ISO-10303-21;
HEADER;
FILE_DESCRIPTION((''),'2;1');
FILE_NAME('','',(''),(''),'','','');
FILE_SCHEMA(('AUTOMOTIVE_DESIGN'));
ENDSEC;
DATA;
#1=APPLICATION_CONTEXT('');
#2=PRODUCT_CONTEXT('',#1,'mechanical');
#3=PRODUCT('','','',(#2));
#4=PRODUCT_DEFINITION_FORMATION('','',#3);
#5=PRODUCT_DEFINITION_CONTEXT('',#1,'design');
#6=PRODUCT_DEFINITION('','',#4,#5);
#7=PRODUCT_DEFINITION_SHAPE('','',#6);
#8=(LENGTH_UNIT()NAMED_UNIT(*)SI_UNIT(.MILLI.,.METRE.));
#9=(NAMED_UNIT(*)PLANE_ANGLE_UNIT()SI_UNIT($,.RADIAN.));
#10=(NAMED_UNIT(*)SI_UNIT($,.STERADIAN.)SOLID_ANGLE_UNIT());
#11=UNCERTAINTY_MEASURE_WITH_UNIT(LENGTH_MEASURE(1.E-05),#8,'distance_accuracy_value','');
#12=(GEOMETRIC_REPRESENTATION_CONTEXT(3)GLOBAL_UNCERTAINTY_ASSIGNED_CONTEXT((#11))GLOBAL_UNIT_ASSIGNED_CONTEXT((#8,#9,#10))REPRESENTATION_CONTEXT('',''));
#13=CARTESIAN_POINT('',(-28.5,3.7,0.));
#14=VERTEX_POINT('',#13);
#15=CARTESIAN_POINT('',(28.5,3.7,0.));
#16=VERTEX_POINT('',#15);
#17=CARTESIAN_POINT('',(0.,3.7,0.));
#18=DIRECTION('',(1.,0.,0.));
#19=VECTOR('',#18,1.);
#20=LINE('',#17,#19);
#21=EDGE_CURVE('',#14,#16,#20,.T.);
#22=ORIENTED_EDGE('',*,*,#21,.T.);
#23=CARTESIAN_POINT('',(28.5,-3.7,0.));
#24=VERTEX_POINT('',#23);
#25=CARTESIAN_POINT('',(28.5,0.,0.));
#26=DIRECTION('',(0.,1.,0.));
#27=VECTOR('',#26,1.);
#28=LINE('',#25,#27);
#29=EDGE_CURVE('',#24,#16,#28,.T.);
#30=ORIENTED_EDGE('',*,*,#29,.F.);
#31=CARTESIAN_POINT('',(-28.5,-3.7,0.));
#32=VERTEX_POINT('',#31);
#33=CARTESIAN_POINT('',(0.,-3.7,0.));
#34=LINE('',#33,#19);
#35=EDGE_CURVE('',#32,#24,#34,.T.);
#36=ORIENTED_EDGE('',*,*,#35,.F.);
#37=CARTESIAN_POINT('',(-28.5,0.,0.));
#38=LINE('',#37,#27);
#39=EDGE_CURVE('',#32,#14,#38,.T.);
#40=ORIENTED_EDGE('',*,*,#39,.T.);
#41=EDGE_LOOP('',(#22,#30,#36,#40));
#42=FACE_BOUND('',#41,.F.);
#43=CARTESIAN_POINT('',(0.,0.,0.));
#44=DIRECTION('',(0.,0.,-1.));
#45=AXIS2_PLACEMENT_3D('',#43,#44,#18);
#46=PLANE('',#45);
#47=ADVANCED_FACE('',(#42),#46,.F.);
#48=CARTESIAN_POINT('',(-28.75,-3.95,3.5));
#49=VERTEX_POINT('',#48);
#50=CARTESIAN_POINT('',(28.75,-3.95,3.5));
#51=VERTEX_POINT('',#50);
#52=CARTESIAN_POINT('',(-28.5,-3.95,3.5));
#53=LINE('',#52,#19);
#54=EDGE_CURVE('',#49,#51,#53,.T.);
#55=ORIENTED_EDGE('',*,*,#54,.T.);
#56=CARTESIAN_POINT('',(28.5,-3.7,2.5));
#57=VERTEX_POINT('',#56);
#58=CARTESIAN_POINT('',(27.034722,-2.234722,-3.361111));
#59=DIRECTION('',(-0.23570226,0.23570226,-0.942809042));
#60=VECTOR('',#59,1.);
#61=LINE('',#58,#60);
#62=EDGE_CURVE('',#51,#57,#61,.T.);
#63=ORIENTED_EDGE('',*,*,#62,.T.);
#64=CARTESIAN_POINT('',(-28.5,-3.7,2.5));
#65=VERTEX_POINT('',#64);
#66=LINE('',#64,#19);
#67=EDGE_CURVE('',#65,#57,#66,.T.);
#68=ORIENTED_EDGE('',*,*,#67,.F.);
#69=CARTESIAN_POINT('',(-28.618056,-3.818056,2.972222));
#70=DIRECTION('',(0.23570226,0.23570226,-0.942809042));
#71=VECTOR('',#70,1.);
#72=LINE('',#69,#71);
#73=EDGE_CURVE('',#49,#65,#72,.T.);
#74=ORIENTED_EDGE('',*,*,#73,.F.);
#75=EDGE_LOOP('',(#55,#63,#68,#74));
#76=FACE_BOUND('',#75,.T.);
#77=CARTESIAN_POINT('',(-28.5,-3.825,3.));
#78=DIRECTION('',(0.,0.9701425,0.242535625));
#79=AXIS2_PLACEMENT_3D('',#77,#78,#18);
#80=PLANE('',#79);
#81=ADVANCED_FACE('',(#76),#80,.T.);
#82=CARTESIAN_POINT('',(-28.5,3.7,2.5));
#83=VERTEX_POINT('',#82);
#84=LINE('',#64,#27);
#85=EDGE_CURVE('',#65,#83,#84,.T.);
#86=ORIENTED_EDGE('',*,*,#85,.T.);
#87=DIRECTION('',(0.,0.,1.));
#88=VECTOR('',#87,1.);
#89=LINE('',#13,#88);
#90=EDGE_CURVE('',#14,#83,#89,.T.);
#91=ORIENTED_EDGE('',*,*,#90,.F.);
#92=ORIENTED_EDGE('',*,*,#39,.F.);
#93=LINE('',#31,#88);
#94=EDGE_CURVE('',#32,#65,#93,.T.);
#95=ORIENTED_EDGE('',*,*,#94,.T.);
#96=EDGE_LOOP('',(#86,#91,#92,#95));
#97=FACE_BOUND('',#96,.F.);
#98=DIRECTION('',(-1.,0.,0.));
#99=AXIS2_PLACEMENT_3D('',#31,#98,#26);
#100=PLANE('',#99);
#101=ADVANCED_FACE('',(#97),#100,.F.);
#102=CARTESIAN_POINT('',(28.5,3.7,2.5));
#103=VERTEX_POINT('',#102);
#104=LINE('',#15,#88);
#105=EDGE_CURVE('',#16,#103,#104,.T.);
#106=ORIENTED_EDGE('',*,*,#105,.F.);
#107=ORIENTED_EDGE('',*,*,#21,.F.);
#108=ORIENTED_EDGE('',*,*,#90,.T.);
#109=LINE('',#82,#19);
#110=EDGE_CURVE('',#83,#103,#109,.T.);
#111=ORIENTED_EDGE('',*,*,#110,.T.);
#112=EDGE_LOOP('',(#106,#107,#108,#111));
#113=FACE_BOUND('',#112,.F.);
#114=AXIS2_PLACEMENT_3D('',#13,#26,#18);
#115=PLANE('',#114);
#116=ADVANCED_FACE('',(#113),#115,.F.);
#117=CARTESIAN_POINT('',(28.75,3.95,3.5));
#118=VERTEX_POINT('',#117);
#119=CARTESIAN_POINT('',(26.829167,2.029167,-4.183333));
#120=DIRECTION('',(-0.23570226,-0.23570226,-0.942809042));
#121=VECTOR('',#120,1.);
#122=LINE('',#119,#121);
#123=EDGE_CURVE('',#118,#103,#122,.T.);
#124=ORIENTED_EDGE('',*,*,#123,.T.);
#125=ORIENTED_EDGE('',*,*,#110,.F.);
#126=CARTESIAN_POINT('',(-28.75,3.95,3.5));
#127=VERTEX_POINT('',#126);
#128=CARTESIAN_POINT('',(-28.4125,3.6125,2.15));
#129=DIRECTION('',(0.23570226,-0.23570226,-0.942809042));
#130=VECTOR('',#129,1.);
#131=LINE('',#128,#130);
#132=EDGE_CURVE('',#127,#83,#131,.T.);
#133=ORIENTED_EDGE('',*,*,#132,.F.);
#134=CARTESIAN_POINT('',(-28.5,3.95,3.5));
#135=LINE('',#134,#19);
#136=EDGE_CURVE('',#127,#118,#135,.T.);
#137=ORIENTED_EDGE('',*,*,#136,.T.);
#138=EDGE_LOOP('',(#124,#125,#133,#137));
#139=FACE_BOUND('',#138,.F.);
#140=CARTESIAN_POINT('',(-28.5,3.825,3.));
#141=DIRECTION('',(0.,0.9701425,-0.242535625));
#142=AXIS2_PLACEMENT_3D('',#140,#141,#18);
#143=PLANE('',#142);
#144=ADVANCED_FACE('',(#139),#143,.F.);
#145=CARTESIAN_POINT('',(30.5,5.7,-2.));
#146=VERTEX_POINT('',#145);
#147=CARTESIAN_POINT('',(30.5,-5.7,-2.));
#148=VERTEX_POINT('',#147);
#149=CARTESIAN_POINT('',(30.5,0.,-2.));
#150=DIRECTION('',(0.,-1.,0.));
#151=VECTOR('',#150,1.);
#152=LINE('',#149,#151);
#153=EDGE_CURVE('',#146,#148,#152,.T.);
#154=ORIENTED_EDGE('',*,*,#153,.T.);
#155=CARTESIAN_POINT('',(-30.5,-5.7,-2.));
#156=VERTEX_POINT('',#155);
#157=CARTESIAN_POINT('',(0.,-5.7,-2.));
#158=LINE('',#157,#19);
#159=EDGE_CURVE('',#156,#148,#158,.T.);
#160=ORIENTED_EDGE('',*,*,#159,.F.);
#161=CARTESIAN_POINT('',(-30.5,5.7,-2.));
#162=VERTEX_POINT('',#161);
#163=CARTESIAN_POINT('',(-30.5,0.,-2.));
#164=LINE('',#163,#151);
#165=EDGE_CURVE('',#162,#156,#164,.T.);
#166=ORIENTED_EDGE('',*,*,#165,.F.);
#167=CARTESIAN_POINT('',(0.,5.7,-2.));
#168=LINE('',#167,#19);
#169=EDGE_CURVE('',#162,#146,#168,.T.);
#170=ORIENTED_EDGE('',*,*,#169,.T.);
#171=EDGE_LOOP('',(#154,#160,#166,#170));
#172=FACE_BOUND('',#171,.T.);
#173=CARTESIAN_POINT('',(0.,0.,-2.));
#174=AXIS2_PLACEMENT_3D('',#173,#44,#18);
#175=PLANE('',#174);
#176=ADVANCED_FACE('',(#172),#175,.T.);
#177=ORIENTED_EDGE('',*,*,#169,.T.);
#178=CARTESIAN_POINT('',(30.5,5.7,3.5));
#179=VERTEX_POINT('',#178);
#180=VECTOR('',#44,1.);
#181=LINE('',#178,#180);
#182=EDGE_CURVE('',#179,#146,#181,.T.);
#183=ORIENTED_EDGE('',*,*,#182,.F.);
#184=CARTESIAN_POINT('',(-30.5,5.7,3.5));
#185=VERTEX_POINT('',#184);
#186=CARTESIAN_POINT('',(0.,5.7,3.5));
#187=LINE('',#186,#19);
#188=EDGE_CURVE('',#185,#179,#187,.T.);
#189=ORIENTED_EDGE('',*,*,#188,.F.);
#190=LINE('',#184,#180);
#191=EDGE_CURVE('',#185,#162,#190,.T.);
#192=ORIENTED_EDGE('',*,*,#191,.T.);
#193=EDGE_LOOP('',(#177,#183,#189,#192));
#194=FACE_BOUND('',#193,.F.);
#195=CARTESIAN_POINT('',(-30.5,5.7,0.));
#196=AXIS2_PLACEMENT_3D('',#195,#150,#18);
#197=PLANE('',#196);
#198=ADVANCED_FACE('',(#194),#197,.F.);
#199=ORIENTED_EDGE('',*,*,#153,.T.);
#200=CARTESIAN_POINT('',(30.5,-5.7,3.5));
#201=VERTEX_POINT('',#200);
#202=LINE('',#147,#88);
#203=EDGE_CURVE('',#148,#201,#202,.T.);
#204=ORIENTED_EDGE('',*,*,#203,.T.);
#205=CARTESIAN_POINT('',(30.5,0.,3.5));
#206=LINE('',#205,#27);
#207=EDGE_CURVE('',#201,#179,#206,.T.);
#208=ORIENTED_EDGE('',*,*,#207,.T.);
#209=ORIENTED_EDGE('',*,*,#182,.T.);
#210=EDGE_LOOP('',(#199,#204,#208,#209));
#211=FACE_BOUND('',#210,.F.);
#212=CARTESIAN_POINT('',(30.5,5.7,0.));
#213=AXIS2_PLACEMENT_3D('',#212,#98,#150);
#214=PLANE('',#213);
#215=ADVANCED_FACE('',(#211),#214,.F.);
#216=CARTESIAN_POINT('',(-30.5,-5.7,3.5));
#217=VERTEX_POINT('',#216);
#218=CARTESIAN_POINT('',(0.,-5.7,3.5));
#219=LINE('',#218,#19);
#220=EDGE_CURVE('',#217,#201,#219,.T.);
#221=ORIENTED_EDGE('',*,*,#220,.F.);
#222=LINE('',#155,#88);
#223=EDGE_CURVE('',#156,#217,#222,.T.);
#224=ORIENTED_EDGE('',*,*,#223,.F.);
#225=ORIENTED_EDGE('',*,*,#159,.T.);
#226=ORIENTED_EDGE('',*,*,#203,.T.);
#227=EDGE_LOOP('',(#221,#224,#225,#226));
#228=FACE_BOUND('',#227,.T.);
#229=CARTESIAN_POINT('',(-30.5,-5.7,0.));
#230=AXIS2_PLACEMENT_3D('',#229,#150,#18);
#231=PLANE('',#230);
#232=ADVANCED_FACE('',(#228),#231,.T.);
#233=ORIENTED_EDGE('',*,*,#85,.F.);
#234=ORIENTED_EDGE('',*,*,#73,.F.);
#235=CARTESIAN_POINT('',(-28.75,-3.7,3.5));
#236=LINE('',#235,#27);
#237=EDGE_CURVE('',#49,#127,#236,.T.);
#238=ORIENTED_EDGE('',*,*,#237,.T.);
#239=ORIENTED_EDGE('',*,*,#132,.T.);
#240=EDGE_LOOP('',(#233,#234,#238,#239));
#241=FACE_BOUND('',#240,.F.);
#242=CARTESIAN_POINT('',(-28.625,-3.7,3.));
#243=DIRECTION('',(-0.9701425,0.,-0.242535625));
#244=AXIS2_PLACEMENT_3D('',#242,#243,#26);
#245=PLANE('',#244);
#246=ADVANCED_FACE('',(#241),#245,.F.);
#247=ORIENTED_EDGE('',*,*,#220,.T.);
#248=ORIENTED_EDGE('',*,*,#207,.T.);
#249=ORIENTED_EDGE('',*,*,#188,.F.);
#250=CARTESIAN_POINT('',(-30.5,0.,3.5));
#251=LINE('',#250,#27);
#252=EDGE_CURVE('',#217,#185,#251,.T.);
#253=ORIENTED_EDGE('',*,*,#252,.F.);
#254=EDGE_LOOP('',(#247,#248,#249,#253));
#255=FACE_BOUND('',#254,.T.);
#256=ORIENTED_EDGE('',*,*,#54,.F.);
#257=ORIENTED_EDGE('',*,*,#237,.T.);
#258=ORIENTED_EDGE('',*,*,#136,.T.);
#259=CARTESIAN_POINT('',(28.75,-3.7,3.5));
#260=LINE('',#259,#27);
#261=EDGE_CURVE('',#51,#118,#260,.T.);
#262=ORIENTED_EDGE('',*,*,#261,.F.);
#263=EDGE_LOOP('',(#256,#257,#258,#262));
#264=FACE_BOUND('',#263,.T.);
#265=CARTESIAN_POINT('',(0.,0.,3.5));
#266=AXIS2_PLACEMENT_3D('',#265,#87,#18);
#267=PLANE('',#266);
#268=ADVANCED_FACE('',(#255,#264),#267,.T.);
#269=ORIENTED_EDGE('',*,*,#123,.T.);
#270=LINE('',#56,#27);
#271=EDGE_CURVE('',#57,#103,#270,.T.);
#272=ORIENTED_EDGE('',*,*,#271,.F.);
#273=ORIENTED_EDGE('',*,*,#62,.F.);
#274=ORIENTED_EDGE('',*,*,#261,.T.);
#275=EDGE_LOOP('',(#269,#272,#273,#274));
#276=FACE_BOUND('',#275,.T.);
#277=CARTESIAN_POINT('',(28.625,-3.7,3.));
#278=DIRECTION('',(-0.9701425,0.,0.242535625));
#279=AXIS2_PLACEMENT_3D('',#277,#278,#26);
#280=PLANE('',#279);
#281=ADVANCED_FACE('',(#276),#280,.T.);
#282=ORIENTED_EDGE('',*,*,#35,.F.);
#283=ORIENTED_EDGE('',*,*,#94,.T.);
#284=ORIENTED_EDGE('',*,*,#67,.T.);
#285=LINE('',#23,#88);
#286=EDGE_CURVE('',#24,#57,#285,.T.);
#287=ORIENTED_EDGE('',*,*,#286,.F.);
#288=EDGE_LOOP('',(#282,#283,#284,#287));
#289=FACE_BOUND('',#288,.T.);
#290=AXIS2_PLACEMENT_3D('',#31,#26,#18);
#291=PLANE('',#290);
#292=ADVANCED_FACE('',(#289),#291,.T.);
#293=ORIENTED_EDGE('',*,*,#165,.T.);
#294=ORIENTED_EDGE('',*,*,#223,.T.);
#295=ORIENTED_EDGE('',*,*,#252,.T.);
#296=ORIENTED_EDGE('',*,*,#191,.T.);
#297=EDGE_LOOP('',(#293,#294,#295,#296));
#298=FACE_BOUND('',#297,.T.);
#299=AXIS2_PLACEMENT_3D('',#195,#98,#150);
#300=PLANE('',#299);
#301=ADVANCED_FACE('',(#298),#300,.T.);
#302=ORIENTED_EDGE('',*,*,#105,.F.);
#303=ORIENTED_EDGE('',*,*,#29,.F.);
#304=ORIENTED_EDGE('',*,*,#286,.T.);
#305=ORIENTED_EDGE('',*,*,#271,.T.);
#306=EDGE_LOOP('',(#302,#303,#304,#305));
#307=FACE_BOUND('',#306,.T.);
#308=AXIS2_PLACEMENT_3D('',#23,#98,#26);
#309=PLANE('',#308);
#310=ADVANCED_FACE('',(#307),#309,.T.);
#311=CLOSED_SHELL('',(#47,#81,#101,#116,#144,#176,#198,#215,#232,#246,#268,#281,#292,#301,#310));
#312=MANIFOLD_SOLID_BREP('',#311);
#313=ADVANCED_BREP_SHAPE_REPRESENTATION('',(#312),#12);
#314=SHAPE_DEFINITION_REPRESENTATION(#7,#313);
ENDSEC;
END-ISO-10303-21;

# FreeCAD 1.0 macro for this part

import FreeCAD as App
import Part
import Sketcher
from FreeCAD import Vector


def edges_at(feature, points):
    """Names of the edges that pass closest to the given points."""
    edges = feature.Shape.Edges
    near = lambda p: min(range(len(edges)), key=lambda i: edges[i].distToShape(Part.Vertex(*p))[0])
    return sorted({f"Edge{near(p) + 1}" for p in points})

doc = App.newDocument("Part")
body = doc.addObject("PartDesign::Body", "Body")

# Sketch on XY plane
sketch1 = body.newObject("Sketcher::SketchObject", "Sketch")
sketch1.AttachmentSupport = (doc.getObject("XY_Plane"), [""])
sketch1.MapMode = "FlatFace"
sketch1.addGeometry(Part.LineSegment(Vector(-30, 6, 0), Vector(-30, -6, 0)), False)
sketch1.addGeometry(Part.LineSegment(Vector(-30, -6, 0), Vector(30, -6, 0)), False)
sketch1.addGeometry(Part.LineSegment(Vector(30, -6, 0), Vector(30, 6, 0)), False)
sketch1.addGeometry(Part.LineSegment(Vector(30, 6, 0), Vector(-30, 6, 0)), False)
sketch1.addGeometry(Part.LineSegment(Vector(28, -4, 0), Vector(-28, -4, 0)), False)
sketch1.addGeometry(Part.LineSegment(Vector(-28, -4, 0), Vector(-28, 4, 0)), False)
sketch1.addGeometry(Part.LineSegment(Vector(-28, 4, 0), Vector(28, 4, 0)), False)
sketch1.addGeometry(Part.LineSegment(Vector(28, 4, 0), Vector(28, -4, 0)), False)
sketch1.addConstraint(Sketcher.Constraint("Coincident", 0, 2, 1, 1))
sketch1.addConstraint(Sketcher.Constraint("Coincident", 1, 2, 2, 1))
sketch1.addConstraint(Sketcher.Constraint("Coincident", 2, 2, 3, 1))
sketch1.addConstraint(Sketcher.Constraint("Coincident", 3, 2, 0, 1))
sketch1.addConstraint(Sketcher.Constraint("Coincident", 4, 2, 5, 1))
sketch1.addConstraint(Sketcher.Constraint("Coincident", 5, 2, 6, 1))
sketch1.addConstraint(Sketcher.Constraint("Coincident", 6, 2, 7, 1))
sketch1.addConstraint(Sketcher.Constraint("Coincident", 7, 2, 4, 1))
sketch1.addConstraint(Sketcher.Constraint("Vertical", 0))
sketch1.addConstraint(Sketcher.Constraint("Horizontal", 1))
sketch1.addConstraint(Sketcher.Constraint("Vertical", 2))
sketch1.addConstraint(Sketcher.Constraint("Horizontal", 3))
sketch1.addConstraint(Sketcher.Constraint("Horizontal", 4))
sketch1.addConstraint(Sketcher.Constraint("Vertical", 5))
sketch1.addConstraint(Sketcher.Constraint("Horizontal", 6))
sketch1.addConstraint(Sketcher.Constraint("Vertical", 7))
sketch1.addConstraint(Sketcher.Constraint("Symmetric", 0, 2, 2, 2, -1, 1))
sketch1.addConstraint(Sketcher.Constraint("Symmetric", 4, 2, 6, 2, -1, 1))
sketch1.addConstraint(Sketcher.Constraint("DistanceX", 1, 1, 1, 2, 61.0))
sketch1.addConstraint(Sketcher.Constraint("DistanceX", 4, 2, 4, 1, 57.0))
sketch1.addConstraint(Sketcher.Constraint("DistanceY", 0, 2, 0, 1, 11.4))
sketch1.addConstraint(Sketcher.Constraint("DistanceY", 5, 1, 5, 2, 7.4))
pad1 = body.newObject("PartDesign::Pad", "Pad")
pad1.Profile = sketch1
pad1.Length = 3.5

# Sketch on XY plane
sketch2 = body.newObject("Sketcher::SketchObject", "Sketch001")
sketch2.AttachmentSupport = (doc.getObject("XY_Plane"), [""])
sketch2.MapMode = "FlatFace"
sketch2.addGeometry(Part.LineSegment(Vector(-30, -6, 0), Vector(-30, 6, 0)), False)
sketch2.addGeometry(Part.LineSegment(Vector(-30, 6, 0), Vector(30, 6, 0)), False)
sketch2.addGeometry(Part.LineSegment(Vector(30, 6, 0), Vector(30, -6, 0)), False)
sketch2.addGeometry(Part.LineSegment(Vector(30, -6, 0), Vector(-30, -6, 0)), False)
sketch2.addConstraint(Sketcher.Constraint("Coincident", 0, 2, 1, 1))
sketch2.addConstraint(Sketcher.Constraint("Coincident", 1, 2, 2, 1))
sketch2.addConstraint(Sketcher.Constraint("Coincident", 2, 2, 3, 1))
sketch2.addConstraint(Sketcher.Constraint("Coincident", 3, 2, 0, 1))
sketch2.addConstraint(Sketcher.Constraint("Vertical", 0))
sketch2.addConstraint(Sketcher.Constraint("Horizontal", 1))
sketch2.addConstraint(Sketcher.Constraint("Vertical", 2))
sketch2.addConstraint(Sketcher.Constraint("Horizontal", 3))
sketch2.addConstraint(Sketcher.Constraint("Symmetric", 0, 2, 2, 2, -1, 1))
sketch2.addConstraint(Sketcher.Constraint("DistanceX", 1, 1, 1, 2, 61.0))
sketch2.addConstraint(Sketcher.Constraint("DistanceY", 0, 1, 0, 2, 11.4))
pad2 = body.newObject("PartDesign::Pad", "Pad001")
pad2.Profile = sketch2
pad2.Length = 2
pad2.Reversed = True
doc.recompute()

chamfer = body.newObject("PartDesign::Chamfer", "Chamfer")
chamfer.Base = (pad2, edges_at(pad2, [
    (0, 3.7, 3.5),
    (-28.5, 0, 3.5),
    (0, -3.7, 3.5),
    (28.5, 0, 3.5),
]))
chamfer.ChamferType = "Two distances"
chamfer.Size = 0.25
chamfer.Size2 = 1

doc.recompute()
